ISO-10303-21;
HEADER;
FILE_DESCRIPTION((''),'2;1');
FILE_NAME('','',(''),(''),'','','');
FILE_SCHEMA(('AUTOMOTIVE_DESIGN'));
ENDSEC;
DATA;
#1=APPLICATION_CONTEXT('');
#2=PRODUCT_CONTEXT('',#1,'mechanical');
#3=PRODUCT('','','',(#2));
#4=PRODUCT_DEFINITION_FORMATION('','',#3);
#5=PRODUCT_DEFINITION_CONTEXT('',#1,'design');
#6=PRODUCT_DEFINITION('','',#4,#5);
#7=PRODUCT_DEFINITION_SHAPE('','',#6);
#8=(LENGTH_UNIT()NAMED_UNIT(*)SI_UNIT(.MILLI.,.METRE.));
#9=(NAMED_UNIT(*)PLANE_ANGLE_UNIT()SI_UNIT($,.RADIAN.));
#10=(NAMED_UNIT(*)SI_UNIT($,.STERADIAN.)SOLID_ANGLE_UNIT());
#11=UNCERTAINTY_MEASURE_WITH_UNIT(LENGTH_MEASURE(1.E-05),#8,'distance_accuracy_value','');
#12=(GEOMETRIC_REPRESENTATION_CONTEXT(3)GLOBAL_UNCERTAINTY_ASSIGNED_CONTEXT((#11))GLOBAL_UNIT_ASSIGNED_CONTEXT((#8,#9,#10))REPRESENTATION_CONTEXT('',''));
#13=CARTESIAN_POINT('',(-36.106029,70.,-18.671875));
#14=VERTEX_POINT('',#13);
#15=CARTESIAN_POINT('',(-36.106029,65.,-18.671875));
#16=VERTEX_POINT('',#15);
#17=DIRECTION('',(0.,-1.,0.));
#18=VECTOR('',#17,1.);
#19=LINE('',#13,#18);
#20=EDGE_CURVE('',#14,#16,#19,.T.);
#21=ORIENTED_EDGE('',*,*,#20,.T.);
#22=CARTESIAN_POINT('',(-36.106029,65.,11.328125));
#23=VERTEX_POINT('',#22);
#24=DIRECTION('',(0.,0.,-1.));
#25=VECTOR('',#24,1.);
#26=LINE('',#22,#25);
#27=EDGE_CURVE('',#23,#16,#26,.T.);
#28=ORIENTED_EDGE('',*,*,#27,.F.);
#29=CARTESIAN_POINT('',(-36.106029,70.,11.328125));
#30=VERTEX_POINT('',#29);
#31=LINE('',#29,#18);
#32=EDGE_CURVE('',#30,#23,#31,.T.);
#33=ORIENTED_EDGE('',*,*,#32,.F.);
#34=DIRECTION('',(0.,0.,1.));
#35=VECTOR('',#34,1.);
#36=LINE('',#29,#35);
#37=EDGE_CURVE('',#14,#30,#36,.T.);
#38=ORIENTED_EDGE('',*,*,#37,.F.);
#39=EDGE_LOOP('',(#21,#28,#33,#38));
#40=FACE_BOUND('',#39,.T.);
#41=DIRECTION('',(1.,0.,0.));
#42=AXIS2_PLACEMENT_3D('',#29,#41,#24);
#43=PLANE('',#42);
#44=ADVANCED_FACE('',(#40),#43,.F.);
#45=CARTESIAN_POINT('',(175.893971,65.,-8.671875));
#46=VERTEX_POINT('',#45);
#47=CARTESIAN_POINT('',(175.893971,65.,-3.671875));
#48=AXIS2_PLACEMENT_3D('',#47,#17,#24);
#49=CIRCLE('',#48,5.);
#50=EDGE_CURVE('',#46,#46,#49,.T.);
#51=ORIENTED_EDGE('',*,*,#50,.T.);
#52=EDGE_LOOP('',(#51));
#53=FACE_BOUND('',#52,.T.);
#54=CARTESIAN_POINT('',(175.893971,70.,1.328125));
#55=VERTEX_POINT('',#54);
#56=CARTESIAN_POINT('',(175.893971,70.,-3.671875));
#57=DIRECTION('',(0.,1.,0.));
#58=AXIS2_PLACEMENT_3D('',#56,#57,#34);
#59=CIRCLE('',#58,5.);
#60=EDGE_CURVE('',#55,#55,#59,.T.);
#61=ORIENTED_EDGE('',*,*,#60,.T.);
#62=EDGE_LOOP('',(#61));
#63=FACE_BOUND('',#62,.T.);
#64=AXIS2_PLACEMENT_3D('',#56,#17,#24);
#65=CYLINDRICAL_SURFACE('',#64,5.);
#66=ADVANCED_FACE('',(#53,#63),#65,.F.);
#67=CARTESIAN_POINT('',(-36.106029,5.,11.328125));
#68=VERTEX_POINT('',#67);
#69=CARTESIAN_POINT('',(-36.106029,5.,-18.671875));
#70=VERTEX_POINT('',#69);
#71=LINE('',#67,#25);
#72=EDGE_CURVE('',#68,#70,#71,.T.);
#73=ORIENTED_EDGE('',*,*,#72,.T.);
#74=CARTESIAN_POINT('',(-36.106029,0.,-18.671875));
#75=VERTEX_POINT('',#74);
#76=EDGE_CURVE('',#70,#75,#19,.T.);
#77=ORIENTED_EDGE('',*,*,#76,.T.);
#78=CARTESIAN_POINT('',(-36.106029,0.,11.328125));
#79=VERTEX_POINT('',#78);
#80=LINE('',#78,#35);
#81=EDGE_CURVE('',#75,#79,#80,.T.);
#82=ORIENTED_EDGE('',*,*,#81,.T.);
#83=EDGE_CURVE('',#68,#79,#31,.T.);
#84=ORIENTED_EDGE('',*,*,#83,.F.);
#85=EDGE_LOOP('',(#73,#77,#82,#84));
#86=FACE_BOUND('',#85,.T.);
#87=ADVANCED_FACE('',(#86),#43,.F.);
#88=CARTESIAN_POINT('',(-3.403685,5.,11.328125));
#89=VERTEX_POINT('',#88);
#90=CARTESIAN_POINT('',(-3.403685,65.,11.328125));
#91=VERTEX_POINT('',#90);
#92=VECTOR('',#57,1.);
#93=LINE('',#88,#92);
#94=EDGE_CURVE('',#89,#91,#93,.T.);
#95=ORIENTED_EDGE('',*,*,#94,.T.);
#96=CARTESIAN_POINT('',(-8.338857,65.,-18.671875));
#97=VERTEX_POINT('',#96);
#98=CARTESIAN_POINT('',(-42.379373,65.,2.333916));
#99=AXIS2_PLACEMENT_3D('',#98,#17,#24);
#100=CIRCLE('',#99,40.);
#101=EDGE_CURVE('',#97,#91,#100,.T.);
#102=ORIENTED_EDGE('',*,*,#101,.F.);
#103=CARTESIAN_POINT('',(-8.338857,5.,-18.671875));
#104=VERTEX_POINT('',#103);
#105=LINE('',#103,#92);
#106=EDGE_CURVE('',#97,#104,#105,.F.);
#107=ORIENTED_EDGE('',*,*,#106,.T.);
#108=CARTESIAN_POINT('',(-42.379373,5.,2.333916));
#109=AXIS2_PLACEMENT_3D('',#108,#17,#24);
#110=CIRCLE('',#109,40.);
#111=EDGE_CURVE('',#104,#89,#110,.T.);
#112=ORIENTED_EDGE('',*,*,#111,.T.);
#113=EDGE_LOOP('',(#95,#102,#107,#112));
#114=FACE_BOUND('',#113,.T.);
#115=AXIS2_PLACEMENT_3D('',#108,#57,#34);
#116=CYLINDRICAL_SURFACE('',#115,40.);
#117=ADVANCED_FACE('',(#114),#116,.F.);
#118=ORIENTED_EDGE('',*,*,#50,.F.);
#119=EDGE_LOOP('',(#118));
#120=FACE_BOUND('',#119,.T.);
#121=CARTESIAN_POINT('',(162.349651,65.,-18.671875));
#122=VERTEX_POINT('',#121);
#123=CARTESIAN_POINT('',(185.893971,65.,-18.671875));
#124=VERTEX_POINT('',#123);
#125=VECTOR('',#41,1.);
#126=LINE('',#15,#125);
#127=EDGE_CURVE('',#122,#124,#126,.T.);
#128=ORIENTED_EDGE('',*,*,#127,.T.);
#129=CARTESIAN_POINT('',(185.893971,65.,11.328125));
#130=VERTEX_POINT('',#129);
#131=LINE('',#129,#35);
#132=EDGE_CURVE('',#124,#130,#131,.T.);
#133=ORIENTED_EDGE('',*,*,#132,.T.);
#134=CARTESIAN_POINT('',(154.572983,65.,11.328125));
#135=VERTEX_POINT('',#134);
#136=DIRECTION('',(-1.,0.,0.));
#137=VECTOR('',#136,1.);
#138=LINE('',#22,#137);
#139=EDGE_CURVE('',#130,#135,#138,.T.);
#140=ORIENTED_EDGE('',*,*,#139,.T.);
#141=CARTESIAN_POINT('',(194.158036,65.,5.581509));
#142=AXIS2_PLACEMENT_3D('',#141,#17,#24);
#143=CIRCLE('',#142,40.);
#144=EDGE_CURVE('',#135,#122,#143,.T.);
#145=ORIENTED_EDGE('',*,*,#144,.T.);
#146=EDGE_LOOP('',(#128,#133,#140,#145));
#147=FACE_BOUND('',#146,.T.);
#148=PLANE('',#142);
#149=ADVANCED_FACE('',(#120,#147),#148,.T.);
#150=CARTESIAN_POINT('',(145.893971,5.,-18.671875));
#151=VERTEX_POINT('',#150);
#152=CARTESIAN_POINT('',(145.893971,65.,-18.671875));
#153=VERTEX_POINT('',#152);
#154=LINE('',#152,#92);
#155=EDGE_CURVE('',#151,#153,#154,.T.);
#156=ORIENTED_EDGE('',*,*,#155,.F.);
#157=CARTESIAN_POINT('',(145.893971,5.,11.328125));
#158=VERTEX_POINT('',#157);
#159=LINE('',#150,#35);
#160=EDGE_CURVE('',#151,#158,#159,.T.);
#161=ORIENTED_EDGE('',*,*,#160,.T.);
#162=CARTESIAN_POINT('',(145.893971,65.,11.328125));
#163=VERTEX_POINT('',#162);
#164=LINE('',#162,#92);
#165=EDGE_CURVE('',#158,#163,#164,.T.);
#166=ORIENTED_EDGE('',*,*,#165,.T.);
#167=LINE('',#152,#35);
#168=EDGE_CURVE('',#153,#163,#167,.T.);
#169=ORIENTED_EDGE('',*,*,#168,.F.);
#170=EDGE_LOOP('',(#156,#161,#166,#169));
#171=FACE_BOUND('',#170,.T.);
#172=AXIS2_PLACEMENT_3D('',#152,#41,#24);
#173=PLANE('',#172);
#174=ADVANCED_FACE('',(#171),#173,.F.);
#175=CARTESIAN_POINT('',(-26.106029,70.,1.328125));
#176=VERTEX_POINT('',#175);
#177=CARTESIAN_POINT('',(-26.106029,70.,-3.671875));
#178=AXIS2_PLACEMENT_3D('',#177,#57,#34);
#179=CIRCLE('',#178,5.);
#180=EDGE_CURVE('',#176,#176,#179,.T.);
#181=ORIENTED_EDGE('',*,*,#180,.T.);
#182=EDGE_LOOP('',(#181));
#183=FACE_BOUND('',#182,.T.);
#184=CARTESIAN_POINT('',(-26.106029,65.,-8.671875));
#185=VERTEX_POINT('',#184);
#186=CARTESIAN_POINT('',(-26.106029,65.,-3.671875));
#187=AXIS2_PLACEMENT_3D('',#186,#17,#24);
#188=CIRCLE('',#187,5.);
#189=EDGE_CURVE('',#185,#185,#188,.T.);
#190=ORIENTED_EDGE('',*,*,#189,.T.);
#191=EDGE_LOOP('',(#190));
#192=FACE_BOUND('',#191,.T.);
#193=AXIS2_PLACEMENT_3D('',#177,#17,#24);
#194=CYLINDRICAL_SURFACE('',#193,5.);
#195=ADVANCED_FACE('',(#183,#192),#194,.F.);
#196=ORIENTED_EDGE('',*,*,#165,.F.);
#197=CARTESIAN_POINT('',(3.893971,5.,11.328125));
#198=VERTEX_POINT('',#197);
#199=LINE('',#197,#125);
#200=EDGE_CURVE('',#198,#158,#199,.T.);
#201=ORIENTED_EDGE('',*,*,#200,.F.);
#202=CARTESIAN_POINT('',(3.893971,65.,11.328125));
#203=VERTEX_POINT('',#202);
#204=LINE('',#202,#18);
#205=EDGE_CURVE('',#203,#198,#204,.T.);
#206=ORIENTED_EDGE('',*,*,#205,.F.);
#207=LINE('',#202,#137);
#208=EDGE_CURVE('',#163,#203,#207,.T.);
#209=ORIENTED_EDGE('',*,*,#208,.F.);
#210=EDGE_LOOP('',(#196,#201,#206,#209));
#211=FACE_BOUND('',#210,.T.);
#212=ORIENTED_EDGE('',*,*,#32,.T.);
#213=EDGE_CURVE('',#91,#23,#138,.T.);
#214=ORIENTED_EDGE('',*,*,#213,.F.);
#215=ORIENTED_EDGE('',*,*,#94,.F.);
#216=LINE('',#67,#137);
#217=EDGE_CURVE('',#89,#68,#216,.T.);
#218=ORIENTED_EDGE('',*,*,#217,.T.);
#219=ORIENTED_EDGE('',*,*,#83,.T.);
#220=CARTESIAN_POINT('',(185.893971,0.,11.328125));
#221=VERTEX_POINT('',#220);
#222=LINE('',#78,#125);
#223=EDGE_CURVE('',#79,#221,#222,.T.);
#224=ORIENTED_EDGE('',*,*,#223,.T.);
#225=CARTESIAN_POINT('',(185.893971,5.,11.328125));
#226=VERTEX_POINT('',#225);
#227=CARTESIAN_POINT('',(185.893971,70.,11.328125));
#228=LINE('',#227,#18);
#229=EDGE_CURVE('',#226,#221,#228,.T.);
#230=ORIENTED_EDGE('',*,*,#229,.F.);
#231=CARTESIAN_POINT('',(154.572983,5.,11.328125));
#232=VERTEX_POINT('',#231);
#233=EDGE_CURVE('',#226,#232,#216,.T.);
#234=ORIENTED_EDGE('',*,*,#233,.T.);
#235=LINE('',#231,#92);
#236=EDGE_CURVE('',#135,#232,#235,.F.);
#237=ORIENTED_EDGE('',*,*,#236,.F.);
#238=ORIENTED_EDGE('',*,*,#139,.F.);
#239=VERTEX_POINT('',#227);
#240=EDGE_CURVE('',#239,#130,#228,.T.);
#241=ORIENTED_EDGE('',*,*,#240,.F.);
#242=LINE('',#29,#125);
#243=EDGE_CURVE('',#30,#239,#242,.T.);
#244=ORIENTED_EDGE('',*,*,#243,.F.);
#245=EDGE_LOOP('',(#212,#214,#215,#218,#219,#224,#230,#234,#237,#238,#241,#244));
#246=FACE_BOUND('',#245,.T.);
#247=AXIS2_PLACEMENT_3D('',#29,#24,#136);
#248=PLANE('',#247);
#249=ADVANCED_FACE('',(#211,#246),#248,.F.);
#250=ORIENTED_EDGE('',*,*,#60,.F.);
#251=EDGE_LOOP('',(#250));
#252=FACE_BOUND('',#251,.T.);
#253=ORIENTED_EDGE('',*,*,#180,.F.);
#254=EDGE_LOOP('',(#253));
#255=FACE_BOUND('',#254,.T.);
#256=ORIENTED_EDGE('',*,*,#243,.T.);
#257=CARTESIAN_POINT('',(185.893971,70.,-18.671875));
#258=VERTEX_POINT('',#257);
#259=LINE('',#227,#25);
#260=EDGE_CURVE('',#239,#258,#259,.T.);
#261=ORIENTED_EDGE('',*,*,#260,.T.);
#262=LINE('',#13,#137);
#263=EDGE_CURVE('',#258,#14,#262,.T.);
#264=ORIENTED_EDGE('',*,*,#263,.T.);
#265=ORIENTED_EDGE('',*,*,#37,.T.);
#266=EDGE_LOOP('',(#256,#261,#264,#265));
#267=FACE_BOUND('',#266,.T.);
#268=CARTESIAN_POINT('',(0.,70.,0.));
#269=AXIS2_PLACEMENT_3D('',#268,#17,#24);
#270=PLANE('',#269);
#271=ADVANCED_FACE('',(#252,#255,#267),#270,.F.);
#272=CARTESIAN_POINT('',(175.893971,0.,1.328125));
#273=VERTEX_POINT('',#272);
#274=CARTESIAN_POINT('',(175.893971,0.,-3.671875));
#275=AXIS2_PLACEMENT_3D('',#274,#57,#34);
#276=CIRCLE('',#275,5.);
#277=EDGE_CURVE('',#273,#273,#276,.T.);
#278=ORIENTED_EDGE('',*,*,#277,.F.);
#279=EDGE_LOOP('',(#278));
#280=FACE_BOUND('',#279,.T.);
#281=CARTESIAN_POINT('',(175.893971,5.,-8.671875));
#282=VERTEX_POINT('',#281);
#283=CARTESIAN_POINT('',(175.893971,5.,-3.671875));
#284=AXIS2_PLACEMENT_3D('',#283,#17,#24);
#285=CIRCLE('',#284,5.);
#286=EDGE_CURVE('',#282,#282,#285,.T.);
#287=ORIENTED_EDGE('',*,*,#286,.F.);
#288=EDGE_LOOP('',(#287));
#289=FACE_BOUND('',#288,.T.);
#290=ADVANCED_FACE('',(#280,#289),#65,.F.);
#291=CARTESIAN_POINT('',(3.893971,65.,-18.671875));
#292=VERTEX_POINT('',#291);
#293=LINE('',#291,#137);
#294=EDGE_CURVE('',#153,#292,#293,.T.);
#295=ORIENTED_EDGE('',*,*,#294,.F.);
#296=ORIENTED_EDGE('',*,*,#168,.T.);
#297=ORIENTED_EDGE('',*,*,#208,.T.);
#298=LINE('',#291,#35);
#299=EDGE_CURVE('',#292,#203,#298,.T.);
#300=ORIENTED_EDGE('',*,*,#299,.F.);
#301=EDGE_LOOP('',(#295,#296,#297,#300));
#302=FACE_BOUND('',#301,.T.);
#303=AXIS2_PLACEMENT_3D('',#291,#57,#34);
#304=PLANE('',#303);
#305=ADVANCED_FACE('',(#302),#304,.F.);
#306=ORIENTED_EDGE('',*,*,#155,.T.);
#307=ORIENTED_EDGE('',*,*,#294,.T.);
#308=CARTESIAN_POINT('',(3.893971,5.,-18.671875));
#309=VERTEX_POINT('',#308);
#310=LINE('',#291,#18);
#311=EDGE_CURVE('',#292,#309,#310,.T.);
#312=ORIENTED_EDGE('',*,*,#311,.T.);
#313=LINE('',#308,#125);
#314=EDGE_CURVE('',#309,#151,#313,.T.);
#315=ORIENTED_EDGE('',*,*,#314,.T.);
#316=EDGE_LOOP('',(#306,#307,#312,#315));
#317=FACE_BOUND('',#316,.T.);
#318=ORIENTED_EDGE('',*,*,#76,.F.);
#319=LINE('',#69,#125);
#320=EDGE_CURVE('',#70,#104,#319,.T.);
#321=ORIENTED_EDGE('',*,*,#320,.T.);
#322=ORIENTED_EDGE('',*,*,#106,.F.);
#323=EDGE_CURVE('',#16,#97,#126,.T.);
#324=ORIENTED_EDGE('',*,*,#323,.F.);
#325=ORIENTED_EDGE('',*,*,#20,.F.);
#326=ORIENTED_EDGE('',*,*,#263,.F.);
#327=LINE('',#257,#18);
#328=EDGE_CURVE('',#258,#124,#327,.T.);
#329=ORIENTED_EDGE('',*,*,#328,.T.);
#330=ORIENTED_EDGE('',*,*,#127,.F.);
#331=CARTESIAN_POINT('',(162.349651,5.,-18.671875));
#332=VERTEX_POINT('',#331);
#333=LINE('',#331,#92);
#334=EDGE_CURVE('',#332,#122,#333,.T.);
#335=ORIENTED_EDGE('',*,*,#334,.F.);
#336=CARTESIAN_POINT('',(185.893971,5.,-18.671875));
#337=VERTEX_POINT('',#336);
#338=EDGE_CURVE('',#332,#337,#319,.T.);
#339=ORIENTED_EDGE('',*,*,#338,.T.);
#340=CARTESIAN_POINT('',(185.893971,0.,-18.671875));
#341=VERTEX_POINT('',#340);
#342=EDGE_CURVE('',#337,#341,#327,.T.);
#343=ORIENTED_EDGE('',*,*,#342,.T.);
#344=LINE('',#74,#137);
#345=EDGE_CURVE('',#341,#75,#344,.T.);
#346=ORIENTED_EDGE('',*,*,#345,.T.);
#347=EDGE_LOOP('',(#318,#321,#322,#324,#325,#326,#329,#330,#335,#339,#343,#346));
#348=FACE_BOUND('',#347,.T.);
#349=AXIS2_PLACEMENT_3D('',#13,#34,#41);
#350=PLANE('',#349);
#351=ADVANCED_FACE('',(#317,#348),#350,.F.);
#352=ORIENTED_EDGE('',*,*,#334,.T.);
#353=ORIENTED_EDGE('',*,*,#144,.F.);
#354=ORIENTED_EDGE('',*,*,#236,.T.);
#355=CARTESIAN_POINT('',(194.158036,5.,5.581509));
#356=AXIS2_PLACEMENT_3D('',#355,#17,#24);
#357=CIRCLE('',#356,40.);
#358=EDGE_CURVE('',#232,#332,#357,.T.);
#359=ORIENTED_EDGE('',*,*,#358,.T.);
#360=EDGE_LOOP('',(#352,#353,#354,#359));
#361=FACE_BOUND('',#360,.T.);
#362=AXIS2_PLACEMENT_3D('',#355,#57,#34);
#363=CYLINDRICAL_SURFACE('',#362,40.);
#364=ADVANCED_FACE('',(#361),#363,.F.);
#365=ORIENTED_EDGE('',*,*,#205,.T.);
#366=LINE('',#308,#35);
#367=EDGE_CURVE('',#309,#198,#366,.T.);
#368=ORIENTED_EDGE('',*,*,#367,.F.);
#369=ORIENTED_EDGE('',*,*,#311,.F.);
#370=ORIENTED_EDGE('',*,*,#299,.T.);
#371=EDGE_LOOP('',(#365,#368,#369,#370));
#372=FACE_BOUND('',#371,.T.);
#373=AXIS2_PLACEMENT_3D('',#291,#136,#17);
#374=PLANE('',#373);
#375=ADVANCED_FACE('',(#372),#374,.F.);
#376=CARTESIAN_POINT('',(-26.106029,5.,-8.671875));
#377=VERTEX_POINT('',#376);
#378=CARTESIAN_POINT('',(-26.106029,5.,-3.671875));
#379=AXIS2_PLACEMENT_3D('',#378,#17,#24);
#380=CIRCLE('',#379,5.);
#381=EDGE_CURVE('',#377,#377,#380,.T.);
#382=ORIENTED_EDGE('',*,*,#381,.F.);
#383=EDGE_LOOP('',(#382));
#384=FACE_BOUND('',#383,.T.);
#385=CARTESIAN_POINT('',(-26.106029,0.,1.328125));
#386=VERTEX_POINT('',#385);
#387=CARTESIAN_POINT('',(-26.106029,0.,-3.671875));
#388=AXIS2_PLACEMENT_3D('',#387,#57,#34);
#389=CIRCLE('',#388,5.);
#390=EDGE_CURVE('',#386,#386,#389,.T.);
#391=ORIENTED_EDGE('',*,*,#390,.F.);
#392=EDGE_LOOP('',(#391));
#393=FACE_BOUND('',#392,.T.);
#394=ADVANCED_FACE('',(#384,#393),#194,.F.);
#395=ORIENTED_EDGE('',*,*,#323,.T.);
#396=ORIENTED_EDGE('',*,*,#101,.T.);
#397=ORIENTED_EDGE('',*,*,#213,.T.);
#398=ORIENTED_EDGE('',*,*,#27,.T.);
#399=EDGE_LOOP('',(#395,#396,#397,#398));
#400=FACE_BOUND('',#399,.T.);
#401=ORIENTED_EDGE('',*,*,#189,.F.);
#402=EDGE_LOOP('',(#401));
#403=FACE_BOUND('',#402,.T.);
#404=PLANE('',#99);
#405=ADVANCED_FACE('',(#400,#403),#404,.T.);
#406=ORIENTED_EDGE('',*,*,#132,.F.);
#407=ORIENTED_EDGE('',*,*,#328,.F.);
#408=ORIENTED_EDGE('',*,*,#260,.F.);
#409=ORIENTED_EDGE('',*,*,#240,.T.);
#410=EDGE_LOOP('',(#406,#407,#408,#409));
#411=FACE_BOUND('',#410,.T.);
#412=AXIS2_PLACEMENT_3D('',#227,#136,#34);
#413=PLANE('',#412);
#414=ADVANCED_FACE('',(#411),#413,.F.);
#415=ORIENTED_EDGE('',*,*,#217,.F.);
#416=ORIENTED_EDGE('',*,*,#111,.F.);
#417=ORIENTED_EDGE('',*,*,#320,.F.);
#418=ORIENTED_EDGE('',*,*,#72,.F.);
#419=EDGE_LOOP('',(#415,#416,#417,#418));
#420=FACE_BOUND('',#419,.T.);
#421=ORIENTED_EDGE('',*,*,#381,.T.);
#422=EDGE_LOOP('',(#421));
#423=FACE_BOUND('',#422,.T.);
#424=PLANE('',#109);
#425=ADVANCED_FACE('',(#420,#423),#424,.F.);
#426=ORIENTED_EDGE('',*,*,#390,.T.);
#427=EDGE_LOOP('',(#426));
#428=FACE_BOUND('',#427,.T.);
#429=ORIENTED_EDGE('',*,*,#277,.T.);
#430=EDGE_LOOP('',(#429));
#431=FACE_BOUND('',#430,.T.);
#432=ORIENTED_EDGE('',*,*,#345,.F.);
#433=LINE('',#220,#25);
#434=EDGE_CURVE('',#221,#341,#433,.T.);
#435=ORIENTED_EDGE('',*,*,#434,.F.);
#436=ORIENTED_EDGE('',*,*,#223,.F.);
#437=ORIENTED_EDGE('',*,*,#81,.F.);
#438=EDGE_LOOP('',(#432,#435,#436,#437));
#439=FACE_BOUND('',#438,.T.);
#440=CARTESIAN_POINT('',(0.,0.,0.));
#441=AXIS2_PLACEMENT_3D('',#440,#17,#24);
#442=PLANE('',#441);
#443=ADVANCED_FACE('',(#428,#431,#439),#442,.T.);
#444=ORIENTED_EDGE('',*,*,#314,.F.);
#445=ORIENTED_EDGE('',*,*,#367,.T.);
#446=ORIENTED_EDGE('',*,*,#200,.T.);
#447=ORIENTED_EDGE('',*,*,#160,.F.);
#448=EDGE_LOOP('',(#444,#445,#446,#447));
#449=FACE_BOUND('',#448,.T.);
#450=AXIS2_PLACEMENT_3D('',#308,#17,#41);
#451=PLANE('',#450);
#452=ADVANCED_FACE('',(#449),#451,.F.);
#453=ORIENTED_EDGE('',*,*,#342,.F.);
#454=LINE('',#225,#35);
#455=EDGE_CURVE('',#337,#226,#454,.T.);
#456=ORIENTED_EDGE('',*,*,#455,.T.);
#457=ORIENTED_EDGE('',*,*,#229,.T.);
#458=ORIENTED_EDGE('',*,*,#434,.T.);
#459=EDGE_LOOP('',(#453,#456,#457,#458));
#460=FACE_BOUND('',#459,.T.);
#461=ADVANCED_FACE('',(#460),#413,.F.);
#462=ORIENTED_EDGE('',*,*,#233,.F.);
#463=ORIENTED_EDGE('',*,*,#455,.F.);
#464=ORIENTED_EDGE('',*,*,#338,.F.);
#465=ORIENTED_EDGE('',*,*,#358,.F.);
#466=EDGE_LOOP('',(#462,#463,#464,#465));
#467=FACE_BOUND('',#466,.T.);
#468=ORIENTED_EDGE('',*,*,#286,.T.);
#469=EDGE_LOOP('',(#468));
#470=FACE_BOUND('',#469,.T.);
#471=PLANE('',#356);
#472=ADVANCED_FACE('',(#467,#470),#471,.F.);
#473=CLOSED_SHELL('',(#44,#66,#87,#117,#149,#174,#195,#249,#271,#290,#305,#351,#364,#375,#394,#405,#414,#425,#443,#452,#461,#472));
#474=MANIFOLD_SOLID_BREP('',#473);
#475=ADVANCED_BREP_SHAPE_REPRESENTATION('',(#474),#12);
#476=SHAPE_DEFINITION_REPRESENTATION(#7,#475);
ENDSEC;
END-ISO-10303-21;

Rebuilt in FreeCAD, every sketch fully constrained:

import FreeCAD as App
import Part
import Sketcher

V = App.Vector
Q = App.Units.Quantity


def add_polygon(sketch, points):
    """Adds a closed chain of lines whose ends are joined by coincident constraints."""
    first, n = sketch.GeometryCount, len(points)
    for a, b in zip(points, points[1:] + points[:1]):
        sketch.addGeometry(Part.LineSegment(App.Vector(*a, 0), App.Vector(*b, 0)), False)
    for i in range(n):
        sketch.addConstraint(Sketcher.Constraint("Coincident", first + i, 2, first + (i + 1) % n, 1))

doc = App.newDocument("Part")
params = doc.addObject("Spreadsheet::Sheet", "Params")
for row, (alias, value) in enumerate([
    ("sketch1_diameter", "10 mm"),
    ("sketch1_width", "222 mm"),
    ("sketch1_height", "30 mm"),
    ("pad1_length", "70 mm"),
    ("sketch2_diameter", "80 mm"),
    ("pocket1_length", "30 mm"),
    ("pocket1_length2", "30 mm"),
    ("sketch3_width", "142 mm"),
    ("sketch3_height", "60 mm"),
], start=1):
    params.set(f"A{row}", alias)
    params.set(f"B{row}", "=" + value)
    params.setAlias(f"B{row}", alias)

body = doc.addObject("PartDesign::Body", "Body")

sketch1 = body.newObject("Sketcher::SketchObject", "Sketch")
sketch1.AttachmentSupport = (doc.getObject("XZ_Plane"), [""])
sketch1.MapMode = "FlatFace"
add_polygon(sketch1, [(-36.106029, -18.671875), (-36.106029, 11.328125), (185.893971, 11.328125), (185.893971, -18.671875)])
sketch1.addGeometry(Part.Circle(V(-26.106029, -3.671875, 0), V(0, 0, 1), 5), False)
sketch1.addGeometry(Part.Circle(V(175.893971, -3.671875, 0), V(0, 0, 1), 5), False)
sketch1.addConstraint([
    Sketcher.Constraint("Vertical", 0),
    Sketcher.Constraint("Horizontal", 1),
    Sketcher.Constraint("Vertical", 2),
    Sketcher.Constraint("Horizontal", 3),
    Sketcher.Constraint("Equal", 4, 5),
    Sketcher.Constraint("Horizontal", 4, 3, 5, 3),
    Sketcher.Constraint("Diameter", 4, Q("10 mm")),
    Sketcher.Constraint("DistanceX", 1, 1, 1, 2, Q("222 mm")),
    Sketcher.Constraint("DistanceY", 0, 1, 0, 2, Q("30 mm")),
    Sketcher.Constraint("DistanceX", 4, 3, 5, 3, Q("202 mm")),
    Sketcher.Constraint("DistanceX", 0, 2, 4, 3, Q("10 mm")),
    Sketcher.Constraint("DistanceY", 4, 3, 0, 2, Q("15 mm")),
    Sketcher.Constraint("DistanceX", 4, 3, -1, 1, Q("26.106029 mm")),
    Sketcher.Constraint("DistanceY", 4, 3, -1, 1, Q("3.671875 mm")),
])
sketch1.setExpression("Constraints[10]", "Params.sketch1_diameter")
sketch1.setExpression("Constraints[11]", "Params.sketch1_width")
sketch1.setExpression("Constraints[12]", "Params.sketch1_height")
pad1 = body.newObject("PartDesign::Pad", "Pad")
pad1.Profile = sketch1
pad1.setExpression("Length", "Params.pad1_length")
pad1.Reversed = True

sketch2 = body.newObject("Sketcher::SketchObject", "Sketch001")
sketch2.AttachmentSupport = (doc.getObject("XZ_Plane"), [""])
sketch2.MapMode = "FlatFace"
sketch2.AttachmentOffset = App.Placement(V(0, 0, -35), App.Rotation())
sketch2.addGeometry([
    Part.Circle(V(-42.379373, 2.333916, 0), V(0, 0, 1), 40),
    Part.Circle(V(194.158036, 5.581509, 0), V(0, 0, 1), 40),
], False)
sketch2.addConstraint([
    Sketcher.Constraint("Equal", 0, 1),
    Sketcher.Constraint("Diameter", 0, Q("80 mm")),
    Sketcher.Constraint("DistanceY", -1, 1, 1, 3, Q("5.581509 mm")),
    Sketcher.Constraint("DistanceX", 0, 3, 1, 3, Q("236.537409 mm")),
    Sketcher.Constraint("DistanceX", 0, 3, -1, 1, Q("42.379373 mm")),
    Sketcher.Constraint("DistanceY", -1, 1, 0, 3, Q("2.333916 mm")),
])
sketch2.setExpression("Constraints[1]", "Params.sketch2_diameter")
pocket1 = body.newObject("PartDesign::Pocket", "Pocket")
pocket1.Profile = sketch2
pocket1.Type = "TwoLengths"
pocket1.setExpression("Length", "Params.pocket1_length")
pocket1.setExpression("Length2", "Params.pocket1_length2")
pocket1.Reversed = True

sketch3 = body.newObject("Sketcher::SketchObject", "Sketch002")
sketch3.AttachmentSupport = (doc.getObject("XY_Plane"), [""])
sketch3.MapMode = "FlatFace"
sketch3.AttachmentOffset = App.Placement(V(0, 0, 11.328125), App.Rotation())
add_polygon(sketch3, [(3.893971, 65), (3.893971, 5), (145.893971, 5), (145.893971, 65)])
sketch3.addConstraint([
    Sketcher.Constraint("Vertical", 0),
    Sketcher.Constraint("Horizontal", 1),
    Sketcher.Constraint("Vertical", 2),
    Sketcher.Constraint("Horizontal", 3),
    Sketcher.Constraint("DistanceX", 1, 1, 1, 2, Q("142 mm")),
    Sketcher.Constraint("DistanceY", 0, 2, 0, 1, Q("60 mm")),
    Sketcher.Constraint("DistanceY", -1, 1, 0, 2, Q("5 mm")),
    Sketcher.Constraint("DistanceX", -1, 1, 0, 2, Q("3.893971 mm")),
])
sketch3.setExpression("Constraints[8]", "Params.sketch3_width")
sketch3.setExpression("Constraints[9]", "Params.sketch3_height")
pocket2 = body.newObject("PartDesign::Pocket", "Pocket001")
pocket2.Profile = sketch3
pocket2.Type = "ThroughAll"

doc.recompute()
